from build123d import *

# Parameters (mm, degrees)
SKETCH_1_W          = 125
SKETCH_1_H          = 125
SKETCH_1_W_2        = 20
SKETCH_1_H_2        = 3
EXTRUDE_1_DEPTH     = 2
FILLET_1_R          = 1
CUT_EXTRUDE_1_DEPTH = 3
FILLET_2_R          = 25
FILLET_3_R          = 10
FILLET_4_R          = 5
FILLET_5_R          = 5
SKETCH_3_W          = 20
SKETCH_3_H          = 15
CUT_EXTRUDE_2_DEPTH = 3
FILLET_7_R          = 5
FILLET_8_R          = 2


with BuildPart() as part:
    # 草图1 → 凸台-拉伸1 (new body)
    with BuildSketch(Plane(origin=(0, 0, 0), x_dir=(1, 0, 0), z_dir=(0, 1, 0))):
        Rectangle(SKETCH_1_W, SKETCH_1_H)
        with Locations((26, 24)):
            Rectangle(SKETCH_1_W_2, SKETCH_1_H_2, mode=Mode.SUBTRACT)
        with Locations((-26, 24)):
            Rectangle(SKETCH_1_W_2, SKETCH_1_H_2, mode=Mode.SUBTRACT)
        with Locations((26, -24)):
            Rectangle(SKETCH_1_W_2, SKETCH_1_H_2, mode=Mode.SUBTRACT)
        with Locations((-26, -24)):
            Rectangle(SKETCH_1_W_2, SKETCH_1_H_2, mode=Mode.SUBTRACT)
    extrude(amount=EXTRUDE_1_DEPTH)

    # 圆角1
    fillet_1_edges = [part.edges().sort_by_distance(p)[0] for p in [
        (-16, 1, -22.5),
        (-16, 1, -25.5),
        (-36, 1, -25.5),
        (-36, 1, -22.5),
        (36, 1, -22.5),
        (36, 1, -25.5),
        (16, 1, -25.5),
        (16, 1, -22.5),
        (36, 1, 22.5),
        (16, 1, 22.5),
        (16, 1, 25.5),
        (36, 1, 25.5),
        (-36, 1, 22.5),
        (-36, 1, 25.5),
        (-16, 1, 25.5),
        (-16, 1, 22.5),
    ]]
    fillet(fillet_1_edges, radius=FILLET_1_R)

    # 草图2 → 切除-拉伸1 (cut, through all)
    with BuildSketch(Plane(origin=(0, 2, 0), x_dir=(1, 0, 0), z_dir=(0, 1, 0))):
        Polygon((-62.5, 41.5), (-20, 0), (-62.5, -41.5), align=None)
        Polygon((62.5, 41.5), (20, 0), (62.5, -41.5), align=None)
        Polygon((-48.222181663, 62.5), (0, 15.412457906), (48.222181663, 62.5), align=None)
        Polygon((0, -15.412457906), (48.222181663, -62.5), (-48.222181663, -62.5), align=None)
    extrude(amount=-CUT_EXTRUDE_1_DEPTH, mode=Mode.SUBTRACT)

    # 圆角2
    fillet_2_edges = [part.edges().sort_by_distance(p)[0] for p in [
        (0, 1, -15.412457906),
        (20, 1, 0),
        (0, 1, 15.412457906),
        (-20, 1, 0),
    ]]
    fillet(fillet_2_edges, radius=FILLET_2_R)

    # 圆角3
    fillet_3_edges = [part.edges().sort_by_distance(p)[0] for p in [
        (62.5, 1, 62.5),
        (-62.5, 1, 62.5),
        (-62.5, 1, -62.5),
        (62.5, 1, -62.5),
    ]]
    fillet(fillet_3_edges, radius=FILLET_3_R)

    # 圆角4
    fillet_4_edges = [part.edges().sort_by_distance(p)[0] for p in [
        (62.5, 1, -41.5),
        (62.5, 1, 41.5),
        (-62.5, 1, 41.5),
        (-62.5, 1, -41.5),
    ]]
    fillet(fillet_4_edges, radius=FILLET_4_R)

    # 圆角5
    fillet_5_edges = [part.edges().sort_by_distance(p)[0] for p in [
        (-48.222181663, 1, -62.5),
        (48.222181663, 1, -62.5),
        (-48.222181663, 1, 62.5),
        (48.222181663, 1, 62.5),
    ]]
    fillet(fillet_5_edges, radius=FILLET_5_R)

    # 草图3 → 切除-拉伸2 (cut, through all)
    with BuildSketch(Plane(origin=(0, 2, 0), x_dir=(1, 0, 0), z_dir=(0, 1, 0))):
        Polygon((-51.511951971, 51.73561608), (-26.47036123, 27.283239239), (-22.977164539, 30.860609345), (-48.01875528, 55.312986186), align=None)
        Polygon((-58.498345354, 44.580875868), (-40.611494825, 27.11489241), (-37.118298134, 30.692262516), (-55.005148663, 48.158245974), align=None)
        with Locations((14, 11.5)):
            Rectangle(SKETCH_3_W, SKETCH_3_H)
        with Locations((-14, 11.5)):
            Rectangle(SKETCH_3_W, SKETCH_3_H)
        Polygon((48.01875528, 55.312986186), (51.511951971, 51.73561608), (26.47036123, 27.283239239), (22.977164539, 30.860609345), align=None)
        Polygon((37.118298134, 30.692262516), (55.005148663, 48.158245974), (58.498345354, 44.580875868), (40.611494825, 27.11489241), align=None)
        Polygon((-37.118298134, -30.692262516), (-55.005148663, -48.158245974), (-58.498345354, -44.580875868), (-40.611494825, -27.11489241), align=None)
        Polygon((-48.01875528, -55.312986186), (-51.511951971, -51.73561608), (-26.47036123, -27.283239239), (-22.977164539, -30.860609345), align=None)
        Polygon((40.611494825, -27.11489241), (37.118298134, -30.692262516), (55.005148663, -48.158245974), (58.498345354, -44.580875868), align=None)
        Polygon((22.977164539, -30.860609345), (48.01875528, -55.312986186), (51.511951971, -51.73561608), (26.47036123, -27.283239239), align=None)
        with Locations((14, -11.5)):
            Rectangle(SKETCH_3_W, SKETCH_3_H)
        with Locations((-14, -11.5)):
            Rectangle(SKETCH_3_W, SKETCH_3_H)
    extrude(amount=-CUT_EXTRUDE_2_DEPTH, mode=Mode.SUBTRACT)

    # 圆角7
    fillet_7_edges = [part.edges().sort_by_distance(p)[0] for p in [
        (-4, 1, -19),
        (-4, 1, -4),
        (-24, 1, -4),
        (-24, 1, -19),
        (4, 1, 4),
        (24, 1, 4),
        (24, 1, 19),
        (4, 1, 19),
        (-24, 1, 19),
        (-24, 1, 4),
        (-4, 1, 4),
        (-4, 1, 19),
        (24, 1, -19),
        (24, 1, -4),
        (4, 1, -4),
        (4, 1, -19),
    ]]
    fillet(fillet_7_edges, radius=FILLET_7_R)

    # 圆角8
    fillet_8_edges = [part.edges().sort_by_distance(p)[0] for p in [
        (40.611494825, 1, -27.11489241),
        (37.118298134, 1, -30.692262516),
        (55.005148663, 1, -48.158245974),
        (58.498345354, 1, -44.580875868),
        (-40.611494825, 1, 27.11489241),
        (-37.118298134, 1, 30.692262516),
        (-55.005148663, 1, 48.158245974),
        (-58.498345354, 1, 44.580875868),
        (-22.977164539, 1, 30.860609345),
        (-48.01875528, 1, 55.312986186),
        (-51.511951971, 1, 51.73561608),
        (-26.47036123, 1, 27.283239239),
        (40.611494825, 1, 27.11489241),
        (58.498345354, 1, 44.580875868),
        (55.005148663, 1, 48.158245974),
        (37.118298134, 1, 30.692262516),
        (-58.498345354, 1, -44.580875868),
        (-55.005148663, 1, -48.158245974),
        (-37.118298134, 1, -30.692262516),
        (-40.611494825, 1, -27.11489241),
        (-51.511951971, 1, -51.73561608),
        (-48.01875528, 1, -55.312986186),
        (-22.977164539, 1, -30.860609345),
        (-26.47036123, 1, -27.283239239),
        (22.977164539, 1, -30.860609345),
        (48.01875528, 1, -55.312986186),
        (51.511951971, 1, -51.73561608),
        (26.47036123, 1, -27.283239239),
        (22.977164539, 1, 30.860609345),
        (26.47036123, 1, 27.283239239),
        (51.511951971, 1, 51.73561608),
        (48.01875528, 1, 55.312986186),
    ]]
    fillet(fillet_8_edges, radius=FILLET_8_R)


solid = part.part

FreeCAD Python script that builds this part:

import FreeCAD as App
import Part
import Sketcher
Q = App.Units.Quantity


def edges_at(feature, points):
    """Names of the edges that pass closest to the given points."""
    edges = feature.Shape.Edges
    near = lambda p: min(range(len(edges)), key=lambda i: edges[i].distToShape(Part.Vertex(*p))[0])
    return sorted({f"Edge{near(p) + 1}" for p in points})


def add_polygon(sketch, points):
    """Adds a closed chain of lines whose ends are joined by coincident constraints."""
    first, n = sketch.GeometryCount, len(points)
    for a, b in zip(points, points[1:] + points[:1]):
        sketch.addGeometry(Part.LineSegment(App.Vector(*a, 0), App.Vector(*b, 0)), False)
    for i in range(n):
        sketch.addConstraint(Sketcher.Constraint("Coincident", first + i, 2, first + (i + 1) % n, 1))

doc = App.newDocument("Part")
body = doc.addObject("PartDesign::Body", "Body")

# Sketch on XZ plane
sketch1 = body.newObject("Sketcher::SketchObject", "Sketch")
sketch1.AttachmentSupport = (doc.getObject("XZ_Plane"), [""])
sketch1.MapMode = "FlatFace"
add_polygon(sketch1, [(-62.5, -62.5), (-62.5, 62.5), (62.5, 62.5), (62.5, -62.5)])  # lines 0-3
add_polygon(sketch1, [(-16, 25.5), (-36, 25.5), (-36, 22.5), (-16, 22.5)])  # lines 4-7
add_polygon(sketch1, [(36, 25.5), (16, 25.5), (16, 22.5), (36, 22.5)])  # lines 8-11
add_polygon(sketch1, [(-16, -22.5), (-36, -22.5), (-36, -25.5), (-16, -25.5)])  # lines 12-15
add_polygon(sketch1, [(36, -22.5), (16, -22.5), (16, -25.5), (36, -25.5)])  # lines 16-19
sketch1.addConstraint(Sketcher.Constraint("Vertical", 0))
sketch1.addConstraint(Sketcher.Constraint("Horizontal", 1))
sketch1.addConstraint(Sketcher.Constraint("Vertical", 2))
sketch1.addConstraint(Sketcher.Constraint("Horizontal", 3))
sketch1.addConstraint(Sketcher.Constraint("Horizontal", 4))
sketch1.addConstraint(Sketcher.Constraint("Vertical", 5))
sketch1.addConstraint(Sketcher.Constraint("Horizontal", 6))
sketch1.addConstraint(Sketcher.Constraint("Vertical", 7))
sketch1.addConstraint(Sketcher.Constraint("Horizontal", 8))
sketch1.addConstraint(Sketcher.Constraint("Vertical", 9))
sketch1.addConstraint(Sketcher.Constraint("Horizontal", 10))
sketch1.addConstraint(Sketcher.Constraint("Vertical", 11))
sketch1.addConstraint(Sketcher.Constraint("Horizontal", 12))
sketch1.addConstraint(Sketcher.Constraint("Vertical", 13))
sketch1.addConstraint(Sketcher.Constraint("Horizontal", 14))
sketch1.addConstraint(Sketcher.Constraint("Vertical", 15))
sketch1.addConstraint(Sketcher.Constraint("Horizontal", 16))
sketch1.addConstraint(Sketcher.Constraint("Vertical", 17))
sketch1.addConstraint(Sketcher.Constraint("Horizontal", 18))
sketch1.addConstraint(Sketcher.Constraint("Vertical", 19))
sketch1.addConstraint(Sketcher.Constraint("Symmetric", 0, 2, 2, 2, -1, 1))
sketch1.addConstraint(Sketcher.Constraint("Symmetric", 10, 2, 12, 2, -1, 1))
sketch1.addConstraint(Sketcher.Constraint("Symmetric", 8, 2, 14, 2, -1, 1))
sketch1.addConstraint(Sketcher.Constraint("Symmetric", 6, 2, 16, 2, -1, 1))
sketch1.addConstraint(Sketcher.Constraint("Symmetric", 4, 2, 18, 2, -1, 1))
sketch1.addConstraint(Sketcher.Constraint("Symmetric", 7, 2, 8, 2, -2))
sketch1.addConstraint(Sketcher.Constraint("Symmetric", 5, 2, 10, 2, -2))
sketch1.addConstraint(Sketcher.Constraint("Equal", 3, 0))
sketch1.addConstraint(Sketcher.Constraint("DistanceX", 1, 1, 1, 2, Q("125 mm")))
sketch1.addConstraint(Sketcher.Constraint("DistanceX", 4, 2, 4, 1, Q("20 mm")))
sketch1.addConstraint(Sketcher.Constraint("DistanceY", 5, 2, 5, 1, Q("3 mm")))
sketch1.addConstraint(Sketcher.Constraint("DistanceX", 4, 2, -1, 1, Q("36 mm")))
sketch1.addConstraint(Sketcher.Constraint("DistanceY", 4, 2, 0, 2, Q("37 mm")))
pad1 = body.newObject("PartDesign::Pad", "Pad")
pad1.Profile = sketch1
pad1.Length = 2
pad1.Reversed = True
doc.recompute()

fillet = body.newObject("PartDesign::Fillet", "Fillet")
fillet.Base = (pad1, edges_at(pad1, [
    (-16, 1, -22.5),
    (-16, 1, -25.5),
    (-36, 1, -25.5),
    (-36, 1, -22.5),
    (36, 1, -22.5),
    (36, 1, -25.5),
    (16, 1, -25.5),
    (16, 1, -22.5),
    (36, 1, 22.5),
    (16, 1, 22.5),
    (16, 1, 25.5),
    (36, 1, 25.5),
    (-36, 1, 22.5),
    (-36, 1, 25.5),
    (-16, 1, 25.5),
    (-16, 1, 22.5),
]))
fillet.Radius = 1

# Sketch on XZ plane
sketch2 = body.newObject("Sketcher::SketchObject", "Sketch001")
sketch2.AttachmentSupport = (doc.getObject("XZ_Plane"), [""])
sketch2.MapMode = "FlatFace"
sketch2.AttachmentOffset = App.Placement(App.Vector(0, 0, -2), App.Rotation())
add_polygon(sketch2, [(-20, 0), (-62.5, -41.5), (-62.5, 41.5)])  # lines 0-2
add_polygon(sketch2, [(62.5, -41.5), (20, 0), (62.5, 41.5)])  # lines 3-5
add_polygon(sketch2, [(-48.222182, -62.5), (0, -15.412458), (48.222182, -62.5)])  # lines 6-8
add_polygon(sketch2, [(48.222182, 62.5), (0, 15.412458), (-48.222182, 62.5)])  # lines 9-11
sketch2.addConstraint(Sketcher.Constraint("Vertical", 1))
sketch2.addConstraint(Sketcher.Constraint("Vertical", 5))
sketch2.addConstraint(Sketcher.Constraint("Horizontal", 8))
sketch2.addConstraint(Sketcher.Constraint("Horizontal", 11))
sketch2.addConstraint(Sketcher.Constraint("Symmetric", 2, 2, 3, 2, -1, 1))
sketch2.addConstraint(Sketcher.Constraint("Symmetric", 0, 2, 4, 2, -1, 1))
sketch2.addConstraint(Sketcher.Constraint("Symmetric", 6, 2, 9, 2, -1, 1))
sketch2.addConstraint(Sketcher.Constraint("Symmetric", 7, 2, 10, 2, -1, 1))
sketch2.addConstraint(Sketcher.Constraint("PointOnObject", 2, 2, -1))
sketch2.addConstraint(Sketcher.Constraint("PointOnObject", 6, 2, -2))
sketch2.addConstraint(Sketcher.Constraint("Parallel", 2, 3))
sketch2.addConstraint(Sketcher.Constraint("Parallel", 4, 6))
sketch2.addConstraint(Sketcher.Constraint("Parallel", 3, 7))
sketch2.addConstraint(Sketcher.Constraint("Parallel", 6, 9))
sketch2.addConstraint(Sketcher.Constraint("Horizontal", 1, 2, 4, 2))
sketch2.addConstraint(Sketcher.Constraint("DistanceY", 1, 1, 1, 2, Q("83 mm")))
sketch2.addConstraint(Sketcher.Constraint("DistanceX", 2, 2, -1, 1, Q("20 mm")))
sketch2.addConstraint(Sketcher.Constraint("DistanceX", 1, 2, 4, 2, Q("125 mm")))
sketch2.addConstraint(Sketcher.Constraint("DistanceY", 7, 2, 5, 2, Q("21 mm")))
sketch2.addConstraint(Sketcher.Constraint("DistanceX", 8, 2, 8, 1, Q("96.444363 mm")))
pocket1 = body.newObject("PartDesign::Pocket", "Pocket")
pocket1.Profile = sketch2
pocket1.Type = "ThroughAll"
pocket1.Reversed = True
doc.recompute()

fillet2 = body.newObject("PartDesign::Fillet", "Fillet001")
fillet2.Base = (pocket1, edges_at(pocket1, [
    (0, 1, -15.412),
    (20, 1, 0),
    (0, 1, 15.412),
    (-20, 1, 0),
]))
fillet2.Radius = 25
doc.recompute()

fillet3 = body.newObject("PartDesign::Fillet", "Fillet002")
fillet3.Base = (fillet2, edges_at(fillet2, [
    (62.5, 1, 62.5),
    (-62.5, 1, 62.5),
    (-62.5, 1, -62.5),
    (62.5, 1, -62.5),
]))
fillet3.Radius = 10
doc.recompute()

fillet4 = body.newObject("PartDesign::Fillet", "Fillet003")
fillet4.Base = (fillet3, edges_at(fillet3, [
    (62.5, 1, -41.5),
    (62.5, 1, 41.5),
    (-62.5, 1, 41.5),
    (-62.5, 1, -41.5),
]))
fillet4.Radius = 5
doc.recompute()

fillet5 = body.newObject("PartDesign::Fillet", "Fillet004")
fillet5.Base = (fillet4, edges_at(fillet4, [
    (-48.222, 1, -62.5),
    (48.222, 1, -62.5),
    (-48.222, 1, 62.5),
    (48.222, 1, 62.5),
]))
fillet5.Radius = 5

# Sketch on XZ plane
sketch3 = body.newObject("Sketcher::SketchObject", "Sketch002")
sketch3.AttachmentSupport = (doc.getObject("XZ_Plane"), [""])
sketch3.MapMode = "FlatFace"
sketch3.AttachmentOffset = App.Placement(App.Vector(0, 0, -2), App.Rotation())
add_polygon(sketch3, [(-51.511952, -51.735616), (-26.470361, -27.283239), (-22.977165, -30.860609), (-48.018755, -55.312986)])  # lines 0-3
add_polygon(sketch3, [(-58.498345, -44.580876), (-40.611495, -27.114892), (-37.118298, -30.692263), (-55.005149, -48.158246)])  # lines 4-7
add_polygon(sketch3, [(4, -19), (4, -4), (24, -4), (24, -19)])  # lines 8-11
add_polygon(sketch3, [(-24, -19), (-24, -4), (-4, -4), (-4, -19)])  # lines 12-15
add_polygon(sketch3, [(51.511952, -51.735616), (48.018755, -55.312986), (22.977165, -30.860609), (26.470361, -27.283239)])  # lines 16-19
add_polygon(sketch3, [(55.005149, -48.158246), (37.118298, -30.692263), (40.611495, -27.114892), (58.498345, -44.580876)])  # lines 20-23
add_polygon(sketch3, [(-55.005149, 48.158246), (-37.118298, 30.692263), (-40.611495, 27.114892), (-58.498345, 44.580876)])  # lines 24-27
add_polygon(sketch3, [(-51.511952, 51.735616), (-48.018755, 55.312986), (-22.977165, 30.860609), (-26.470361, 27.283239)])  # lines 28-31
add_polygon(sketch3, [(40.611495, 27.114892), (37.118298, 30.692263), (55.005149, 48.158246), (58.498345, 44.580876)])  # lines 32-35
add_polygon(sketch3, [(22.977165, 30.860609), (48.018755, 55.312986), (51.511952, 51.735616), (26.470361, 27.283239)])  # lines 36-39
add_polygon(sketch3, [(4, 4), (4, 19), (24, 19), (24, 4)])  # lines 40-43
add_polygon(sketch3, [(-24, 4), (-24, 19), (-4, 19), (-4, 4)])  # lines 44-47
sketch3.addConstraint(Sketcher.Constraint("Vertical", 8))
sketch3.addConstraint(Sketcher.Constraint("Horizontal", 9))
sketch3.addConstraint(Sketcher.Constraint("Vertical", 10))
sketch3.addConstraint(Sketcher.Constraint("Horizontal", 11))
sketch3.addConstraint(Sketcher.Constraint("Vertical", 12))
sketch3.addConstraint(Sketcher.Constraint("Horizontal", 13))
sketch3.addConstraint(Sketcher.Constraint("Vertical", 14))
sketch3.addConstraint(Sketcher.Constraint("Horizontal", 15))
sketch3.addConstraint(Sketcher.Constraint("Vertical", 40))
sketch3.addConstraint(Sketcher.Constraint("Horizontal", 41))
sketch3.addConstraint(Sketcher.Constraint("Vertical", 42))
sketch3.addConstraint(Sketcher.Constraint("Horizontal", 43))
sketch3.addConstraint(Sketcher.Constraint("Vertical", 44))
sketch3.addConstraint(Sketcher.Constraint("Horizontal", 45))
sketch3.addConstraint(Sketcher.Constraint("Vertical", 46))
sketch3.addConstraint(Sketcher.Constraint("Horizontal", 47))
sketch3.addConstraint(Sketcher.Constraint("Symmetric", 20, 2, 24, 2, -1, 1))
sketch3.addConstraint(Sketcher.Constraint("Symmetric", 21, 2, 25, 2, -1, 1))
sketch3.addConstraint(Sketcher.Constraint("Symmetric", 22, 2, 26, 2, -1, 1))
sketch3.addConstraint(Sketcher.Constraint("Symmetric", 23, 2, 27, 2, -1, 1))
sketch3.addConstraint(Sketcher.Constraint("Symmetric", 16, 2, 28, 2, -1, 1))
sketch3.addConstraint(Sketcher.Constraint("Symmetric", 17, 2, 29, 2, -1, 1))
sketch3.addConstraint(Sketcher.Constraint("Symmetric", 18, 2, 30, 2, -1, 1))
sketch3.addConstraint(Sketcher.Constraint("Symmetric", 19, 2, 31, 2, -1, 1))
sketch3.addConstraint(Sketcher.Constraint("Symmetric", 5, 2, 32, 2, -1, 1))
sketch3.addConstraint(Sketcher.Constraint("Symmetric", 6, 2, 33, 2, -1, 1))
sketch3.addConstraint(Sketcher.Constraint("Symmetric", 7, 2, 34, 2, -1, 1))
sketch3.addConstraint(Sketcher.Constraint("Symmetric", 4, 2, 35, 2, -1, 1))
sketch3.addConstraint(Sketcher.Constraint("Symmetric", 2, 2, 36, 2, -1, 1))
sketch3.addConstraint(Sketcher.Constraint("Symmetric", 3, 2, 37, 2, -1, 1))
sketch3.addConstraint(Sketcher.Constraint("Symmetric", 0, 2, 38, 2, -1, 1))
sketch3.addConstraint(Sketcher.Constraint("Symmetric", 1, 2, 39, 2, -1, 1))
sketch3.addConstraint(Sketcher.Constraint("Symmetric", 14, 2, 40, 2, -1, 1))
sketch3.addConstraint(Sketcher.Constraint("Symmetric", 12, 2, 42, 2, -1, 1))
sketch3.addConstraint(Sketcher.Constraint("Symmetric", 10, 2, 44, 2, -1, 1))
sketch3.addConstraint(Sketcher.Constraint("Symmetric", 8, 2, 46, 2, -1, 1))
sketch3.addConstraint(Sketcher.Constraint("Symmetric", 9, 2, 12, 2, -2))
sketch3.addConstraint(Sketcher.Constraint("Symmetric", 11, 2, 14, 2, -2))
sketch3.addConstraint(Sketcher.Constraint("Symmetric", 2, 2, 16, 2, -2))
sketch3.addConstraint(Sketcher.Constraint("Symmetric", 1, 2, 17, 2, -2))
sketch3.addConstraint(Sketcher.Constraint("Symmetric", 0, 2, 18, 2, -2))
sketch3.addConstraint(Sketcher.Constraint("Symmetric", 3, 2, 19, 2, -2))
sketch3.addConstraint(Sketcher.Constraint("Symmetric", 5, 2, 20, 2, -2))
sketch3.addConstraint(Sketcher.Constraint("Symmetric", 4, 2, 21, 2, -2))
sketch3.addConstraint(Sketcher.Constraint("Symmetric", 7, 2, 22, 2, -2))
sketch3.addConstraint(Sketcher.Constraint("Symmetric", 6, 2, 23, 2, -2))
sketch3.addConstraint(Sketcher.Constraint("Perpendicular", 0, 1))
sketch3.addConstraint(Sketcher.Constraint("Perpendicular", 1, 2))
sketch3.addConstraint(Sketcher.Constraint("Perpendicular", 2, 3))
sketch3.addConstraint(Sketcher.Constraint("Perpendicular", 3, 4))
sketch3.addConstraint(Sketcher.Constraint("Perpendicular", 4, 5))
sketch3.addConstraint(Sketcher.Constraint("Perpendicular", 5, 6))
sketch3.addConstraint(Sketcher.Constraint("Perpendicular", 6, 7))
sketch3.addConstraint(Sketcher.Constraint("Equal", 3, 5))
sketch3.addConstraint(Sketcher.Constraint("DistanceX", 9, 1, 9, 2, Q("20 mm")))
sketch3.addConstraint(Sketcher.Constraint("DistanceY", 8, 1, 8, 2, Q("15 mm")))
sketch3.addConstraint(Sketcher.Constraint("Distance", 0, Q("35 mm")))
sketch3.addConstraint(Sketcher.Constraint("Distance", 1, Q("5 mm")))
sketch3.addConstraint(Sketcher.Constraint("Distance", 4, Q("25 mm")))
sketch3.addConstraint(Sketcher.Constraint("DistanceX", -1, 1, 8, 2, Q("4 mm")))
sketch3.addConstraint(Sketcher.Constraint("DistanceY", 8, 2, -1, 1, Q("4 mm")))
sketch3.addConstraint(Sketcher.Constraint("DistanceX", 5, 2, -1, 1, Q("37.118298 mm")))
sketch3.addConstraint(Sketcher.Constraint("DistanceX", 0, 2, -1, 1, Q("26.470361 mm")))
sketch3.addConstraint(Sketcher.Constraint("DistanceY", 0, 2, -1, 1, Q("27.283239 mm")))
sketch3.addConstraint(Sketcher.Constraint("DistanceY", 1, 2, -1, 1, Q("30.860609 mm")))
sketch3.addConstraint(Sketcher.Constraint("DistanceY", 3, 2, 6, 2, Q("3.57737 mm")))
pocket2 = body.newObject("PartDesign::Pocket", "Pocket001")
pocket2.Profile = sketch3
pocket2.Type = "ThroughAll"
pocket2.Reversed = True
doc.recompute()

fillet6 = body.newObject("PartDesign::Fillet", "Fillet005")
fillet6.Base = (pocket2, edges_at(pocket2, [
    (-4, 1, -19),
    (-4, 1, -4),
    (-24, 1, -4),
    (-24, 1, -19),
    (4, 1, 4),
    (24, 1, 4),
    (24, 1, 19),
    (4, 1, 19),
    (-24, 1, 19),
    (-24, 1, 4),
    (-4, 1, 4),
    (-4, 1, 19),
    (24, 1, -19),
    (24, 1, -4),
    (4, 1, -4),
    (4, 1, -19),
]))
fillet6.Radius = 5
doc.recompute()

fillet7 = body.newObject("PartDesign::Fillet", "Fillet006")
fillet7.Base = (fillet6, edges_at(fillet6, [
    (40.611, 1, -27.115),
    (37.118, 1, -30.692),
    (55.005, 1, -48.158),
    (58.498, 1, -44.581),
    (-40.611, 1, 27.115),
    (-37.118, 1, 30.692),
    (-55.005, 1, 48.158),
    (-58.498, 1, 44.581),
    (-22.977, 1, 30.861),
    (-48.019, 1, 55.313),
    (-51.512, 1, 51.736),
    (-26.47, 1, 27.283),
    (40.611, 1, 27.115),
    (58.498, 1, 44.581),
    (55.005, 1, 48.158),
    (37.118, 1, 30.692),
    (-58.498, 1, -44.581),
    (-55.005, 1, -48.158),
    (-37.118, 1, -30.692),
    (-40.611, 1, -27.115),
    (-51.512, 1, -51.736),
    (-48.019, 1, -55.313),
    (-22.977, 1, -30.861),
    (-26.47, 1, -27.283),
    (22.977, 1, -30.861),
    (48.019, 1, -55.313),
    (51.512, 1, -51.736),
    (26.47, 1, -27.283),
    (22.977, 1, 30.861),
    (26.47, 1, 27.283),
    (51.512, 1, 51.736),
    (48.019, 1, 55.313),
]))
fillet7.Radius = 2

doc.recompute()
